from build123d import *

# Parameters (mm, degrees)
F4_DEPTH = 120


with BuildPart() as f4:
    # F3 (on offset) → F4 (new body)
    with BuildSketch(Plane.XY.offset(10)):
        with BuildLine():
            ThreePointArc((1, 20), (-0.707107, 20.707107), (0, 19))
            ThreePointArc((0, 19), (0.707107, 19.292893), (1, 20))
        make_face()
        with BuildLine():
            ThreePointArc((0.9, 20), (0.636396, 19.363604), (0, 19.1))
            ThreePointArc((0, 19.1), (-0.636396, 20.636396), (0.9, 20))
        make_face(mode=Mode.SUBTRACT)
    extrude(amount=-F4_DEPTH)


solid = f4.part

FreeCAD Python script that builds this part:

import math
import FreeCAD as App
import Part
import Sketcher
from FreeCAD import Vector

doc = App.newDocument("Part")
body = doc.addObject("PartDesign::Body", "Body")

sketch1 = body.newObject("Sketcher::SketchObject", "Sketch")
sketch1.AttachmentSupport = (doc.getObject("XY_Plane"), [""])
sketch1.MapMode = "FlatFace"
sketch1.AttachmentOffset = App.Placement(Vector(0, 0, 10), App.Rotation())
sketch1.addGeometry(Part.ArcOfCircle(Part.Circle(Vector(0, 20, 0), Vector(0, 0, 1), 1), math.radians(0), math.radians(270)), False)
sketch1.addGeometry(Part.ArcOfCircle(Part.Circle(Vector(0, 20, 0), Vector(0, 0, 1), 1), math.radians(-90), math.radians(0)), False)
sketch1.addGeometry(Part.ArcOfCircle(Part.Circle(Vector(0, 20, 0), Vector(0, 0, 1), 0.9), math.radians(0), math.radians(270)), False)
sketch1.addGeometry(Part.ArcOfCircle(Part.Circle(Vector(0, 20, 0), Vector(0, 0, 1), 0.9), math.radians(-90), math.radians(0)), False)
sketch1.addConstraint(Sketcher.Constraint("Tangent", 0, 1, 1, 2))
sketch1.addConstraint(Sketcher.Constraint("Coincident", 1, 1, 0, 2))
sketch1.addConstraint(Sketcher.Constraint("Tangent", 2, 1, 3, 2))
sketch1.addConstraint(Sketcher.Constraint("Coincident", 3, 1, 2, 2))
sketch1.addConstraint(Sketcher.Constraint("Coincident", 2, 3, 0, 3))
sketch1.addConstraint(Sketcher.Constraint("PointOnObject", 0, 3, -2))
sketch1.addConstraint(Sketcher.Constraint("PointOnObject", 1, 1, -2))
sketch1.addConstraint(Sketcher.Constraint("PointOnObject", 3, 1, -2))
sketch1.addConstraint(Sketcher.Constraint("Horizontal", 3, 3, 0, 1))
sketch1.addConstraint(Sketcher.Constraint("Horizontal", 0, 1, 2, 1))
sketch1.addConstraint(Sketcher.Constraint("Radius", 0, 1.0))
sketch1.addConstraint(Sketcher.Constraint("Radius", 2, 0.9))
sketch1.addConstraint(Sketcher.Constraint("DistanceY", -1, 1, 0, 3, 20.0))
pad1 = body.newObject("PartDesign::Pad", "Pad")
pad1.Profile = sketch1
pad1.Length = 120
pad1.Reversed = True

doc.recompute()
